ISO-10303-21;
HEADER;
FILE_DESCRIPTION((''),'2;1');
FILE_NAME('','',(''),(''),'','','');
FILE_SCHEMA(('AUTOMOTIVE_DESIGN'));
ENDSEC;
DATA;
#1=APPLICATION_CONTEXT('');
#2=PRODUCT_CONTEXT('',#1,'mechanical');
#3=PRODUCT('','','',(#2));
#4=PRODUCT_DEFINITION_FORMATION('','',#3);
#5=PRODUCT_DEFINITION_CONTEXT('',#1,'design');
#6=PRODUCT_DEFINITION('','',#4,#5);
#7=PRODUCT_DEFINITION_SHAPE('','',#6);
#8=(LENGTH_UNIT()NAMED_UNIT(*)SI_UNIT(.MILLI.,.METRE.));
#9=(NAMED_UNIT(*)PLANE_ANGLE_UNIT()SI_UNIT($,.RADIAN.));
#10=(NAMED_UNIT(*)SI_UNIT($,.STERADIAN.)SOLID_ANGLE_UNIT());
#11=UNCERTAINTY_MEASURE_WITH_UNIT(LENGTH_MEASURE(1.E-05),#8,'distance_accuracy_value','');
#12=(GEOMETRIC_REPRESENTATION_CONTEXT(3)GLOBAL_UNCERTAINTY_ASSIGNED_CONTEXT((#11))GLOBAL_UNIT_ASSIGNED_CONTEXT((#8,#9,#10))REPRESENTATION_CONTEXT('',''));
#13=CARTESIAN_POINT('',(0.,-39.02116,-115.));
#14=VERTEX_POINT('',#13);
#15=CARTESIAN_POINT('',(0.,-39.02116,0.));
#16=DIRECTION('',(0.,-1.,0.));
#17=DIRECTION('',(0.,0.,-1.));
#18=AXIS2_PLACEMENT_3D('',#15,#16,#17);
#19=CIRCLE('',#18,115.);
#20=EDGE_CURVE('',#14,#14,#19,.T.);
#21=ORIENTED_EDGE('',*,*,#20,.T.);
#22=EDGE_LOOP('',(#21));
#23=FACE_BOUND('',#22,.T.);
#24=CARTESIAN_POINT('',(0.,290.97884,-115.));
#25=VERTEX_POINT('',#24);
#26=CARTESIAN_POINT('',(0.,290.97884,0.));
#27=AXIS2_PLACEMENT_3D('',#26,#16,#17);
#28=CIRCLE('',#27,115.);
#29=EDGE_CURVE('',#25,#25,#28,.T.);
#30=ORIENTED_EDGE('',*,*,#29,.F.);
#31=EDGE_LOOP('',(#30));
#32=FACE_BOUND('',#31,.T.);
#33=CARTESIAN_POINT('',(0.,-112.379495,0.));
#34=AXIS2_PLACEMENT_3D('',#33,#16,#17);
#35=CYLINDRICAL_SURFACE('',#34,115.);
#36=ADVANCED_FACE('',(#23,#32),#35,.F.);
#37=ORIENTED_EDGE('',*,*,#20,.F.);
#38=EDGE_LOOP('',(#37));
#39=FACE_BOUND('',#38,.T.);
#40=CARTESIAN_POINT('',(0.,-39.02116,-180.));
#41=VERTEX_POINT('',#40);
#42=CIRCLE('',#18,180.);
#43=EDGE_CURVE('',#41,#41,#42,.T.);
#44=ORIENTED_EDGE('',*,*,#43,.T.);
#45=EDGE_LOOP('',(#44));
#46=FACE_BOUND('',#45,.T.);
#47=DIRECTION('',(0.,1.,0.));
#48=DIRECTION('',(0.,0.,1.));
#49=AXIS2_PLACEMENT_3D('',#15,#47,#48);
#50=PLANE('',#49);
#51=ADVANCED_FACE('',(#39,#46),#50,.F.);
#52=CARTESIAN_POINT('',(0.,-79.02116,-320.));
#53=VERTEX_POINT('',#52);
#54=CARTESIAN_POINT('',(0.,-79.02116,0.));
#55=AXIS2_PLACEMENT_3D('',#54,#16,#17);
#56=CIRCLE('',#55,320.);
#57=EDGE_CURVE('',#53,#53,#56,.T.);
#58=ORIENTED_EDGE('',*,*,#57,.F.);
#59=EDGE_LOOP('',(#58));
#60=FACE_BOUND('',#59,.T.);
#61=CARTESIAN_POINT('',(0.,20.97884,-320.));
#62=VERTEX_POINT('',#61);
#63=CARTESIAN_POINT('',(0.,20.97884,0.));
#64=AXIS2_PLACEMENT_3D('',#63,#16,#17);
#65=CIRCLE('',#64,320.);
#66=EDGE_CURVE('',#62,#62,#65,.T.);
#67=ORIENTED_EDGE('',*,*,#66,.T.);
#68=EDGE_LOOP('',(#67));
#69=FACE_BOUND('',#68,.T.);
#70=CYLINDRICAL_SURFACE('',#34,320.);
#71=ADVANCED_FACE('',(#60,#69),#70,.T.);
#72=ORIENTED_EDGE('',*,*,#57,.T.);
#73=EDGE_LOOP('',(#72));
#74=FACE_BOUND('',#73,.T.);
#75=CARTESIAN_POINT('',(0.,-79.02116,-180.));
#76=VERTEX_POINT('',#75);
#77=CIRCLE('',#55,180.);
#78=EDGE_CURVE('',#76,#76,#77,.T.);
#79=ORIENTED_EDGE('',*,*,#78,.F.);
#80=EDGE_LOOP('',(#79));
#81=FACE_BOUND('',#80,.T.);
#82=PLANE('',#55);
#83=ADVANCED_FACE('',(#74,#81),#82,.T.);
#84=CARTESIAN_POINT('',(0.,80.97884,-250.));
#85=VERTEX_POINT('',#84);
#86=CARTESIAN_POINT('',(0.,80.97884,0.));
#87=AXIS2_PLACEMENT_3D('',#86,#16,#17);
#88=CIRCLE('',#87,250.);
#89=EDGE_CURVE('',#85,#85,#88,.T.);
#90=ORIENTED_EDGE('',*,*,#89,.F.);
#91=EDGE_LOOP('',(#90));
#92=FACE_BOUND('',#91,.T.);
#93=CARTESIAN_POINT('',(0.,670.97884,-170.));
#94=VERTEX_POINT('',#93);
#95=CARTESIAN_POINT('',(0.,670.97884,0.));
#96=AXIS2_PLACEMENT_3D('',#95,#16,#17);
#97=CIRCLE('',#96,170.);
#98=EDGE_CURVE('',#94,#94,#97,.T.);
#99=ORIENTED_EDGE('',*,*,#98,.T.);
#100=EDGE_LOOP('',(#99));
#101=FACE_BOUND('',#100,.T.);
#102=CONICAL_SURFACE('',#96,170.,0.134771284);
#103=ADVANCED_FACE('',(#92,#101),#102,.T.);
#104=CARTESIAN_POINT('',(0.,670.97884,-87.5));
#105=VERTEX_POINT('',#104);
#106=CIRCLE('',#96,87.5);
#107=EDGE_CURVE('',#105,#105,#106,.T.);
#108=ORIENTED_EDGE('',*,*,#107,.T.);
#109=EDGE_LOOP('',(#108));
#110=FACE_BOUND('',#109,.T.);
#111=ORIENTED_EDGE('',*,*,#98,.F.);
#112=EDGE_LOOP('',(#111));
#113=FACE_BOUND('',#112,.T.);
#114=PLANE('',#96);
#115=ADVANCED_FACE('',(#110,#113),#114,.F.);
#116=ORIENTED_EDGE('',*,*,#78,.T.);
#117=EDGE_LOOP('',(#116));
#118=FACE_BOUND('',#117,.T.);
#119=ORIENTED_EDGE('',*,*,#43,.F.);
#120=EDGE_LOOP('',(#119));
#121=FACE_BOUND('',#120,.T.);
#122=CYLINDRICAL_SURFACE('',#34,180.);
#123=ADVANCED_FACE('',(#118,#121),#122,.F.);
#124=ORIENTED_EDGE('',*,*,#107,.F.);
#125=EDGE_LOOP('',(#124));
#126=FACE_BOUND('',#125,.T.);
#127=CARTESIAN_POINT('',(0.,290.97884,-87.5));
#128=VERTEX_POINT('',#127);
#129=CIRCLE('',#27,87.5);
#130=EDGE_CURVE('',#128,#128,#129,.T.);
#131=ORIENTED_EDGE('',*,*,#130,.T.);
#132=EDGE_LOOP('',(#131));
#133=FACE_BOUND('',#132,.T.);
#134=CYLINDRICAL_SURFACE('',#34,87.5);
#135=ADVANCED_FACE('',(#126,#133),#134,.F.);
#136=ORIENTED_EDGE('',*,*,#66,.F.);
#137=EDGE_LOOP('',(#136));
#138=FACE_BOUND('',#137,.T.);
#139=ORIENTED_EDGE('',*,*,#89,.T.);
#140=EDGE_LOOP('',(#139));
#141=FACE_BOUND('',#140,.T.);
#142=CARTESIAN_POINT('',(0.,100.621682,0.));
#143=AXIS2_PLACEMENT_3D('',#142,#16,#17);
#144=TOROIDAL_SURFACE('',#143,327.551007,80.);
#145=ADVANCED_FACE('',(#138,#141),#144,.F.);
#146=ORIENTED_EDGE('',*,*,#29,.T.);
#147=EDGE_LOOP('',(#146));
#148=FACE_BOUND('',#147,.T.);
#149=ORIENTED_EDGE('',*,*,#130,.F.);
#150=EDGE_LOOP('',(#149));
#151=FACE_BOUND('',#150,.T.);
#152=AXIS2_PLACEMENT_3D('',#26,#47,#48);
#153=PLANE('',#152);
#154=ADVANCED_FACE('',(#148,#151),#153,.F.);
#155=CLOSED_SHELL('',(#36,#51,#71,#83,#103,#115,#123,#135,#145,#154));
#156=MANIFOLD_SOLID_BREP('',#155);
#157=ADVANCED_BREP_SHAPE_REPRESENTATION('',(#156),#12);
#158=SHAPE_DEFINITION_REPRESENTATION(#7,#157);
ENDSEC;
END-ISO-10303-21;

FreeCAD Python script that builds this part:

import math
import FreeCAD as App
import Part
import Sketcher

V = App.Vector

doc = App.newDocument("Part")
body = doc.addObject("PartDesign::Body", "Body")

# Sketch on XY plane
sketch1 = body.newObject("Sketcher::SketchObject", "Sketch")
sketch1.AttachmentSupport = (doc.getObject("XY_Plane"), [""])
sketch1.MapMode = "FlatFace"
sketch1.addGeometry([
    Part.LineSegment(V(250, 80.97884, 0), V(170, 670.97884, 0)),  # 0
    Part.LineSegment(V(170, 670.97884, 0), V(87.5, 670.97884, 0)),  # 1
    Part.LineSegment(V(87.5, 670.97884, 0), V(87.5, 290.97884, 0)),  # 2
    Part.LineSegment(V(87.5, 290.97884, 0), V(115, 290.97884, 0)),  # 3
    Part.LineSegment(V(115, 290.97884, 0), V(115, -39.02116, 0)),  # 4
    Part.LineSegment(V(115, -39.02116, 0), V(180, -39.02116, 0)),  # 5
    Part.LineSegment(V(180, -39.02116, 0), V(180, -79.02116, 0)),  # 6
    Part.LineSegment(V(180, -79.02116, 0), V(320, -79.02116, 0)),  # 7
    Part.LineSegment(V(320, -79.02116, 0), V(320, 20.97884, 0)),  # 8
    Part.ArcOfCircle(Part.Circle(V(327.551007, 100.621682, 0), V(0, 0, 1), 80), math.radians(-165.786516), math.radians(-95.416073)),  # 9
], False)
sketch1.addConstraint([
    Sketcher.Constraint("Coincident", 0, 2, 1, 1),
    Sketcher.Constraint("Coincident", 1, 2, 2, 1),
    Sketcher.Constraint("Coincident", 2, 2, 3, 1),
    Sketcher.Constraint("Coincident", 3, 2, 4, 1),
    Sketcher.Constraint("Coincident", 4, 2, 5, 1),
    Sketcher.Constraint("Coincident", 5, 2, 6, 1),
    Sketcher.Constraint("Coincident", 6, 2, 7, 1),
    Sketcher.Constraint("Coincident", 7, 2, 8, 1),
    Sketcher.Constraint("Coincident", 8, 2, 9, 2),
    Sketcher.Constraint("Coincident", 9, 1, 0, 1),
    Sketcher.Constraint("Horizontal", 1),
    Sketcher.Constraint("Vertical", 2),
    Sketcher.Constraint("Horizontal", 3),
    Sketcher.Constraint("Vertical", 4),
    Sketcher.Constraint("Horizontal", 5),
    Sketcher.Constraint("Vertical", 6),
    Sketcher.Constraint("Horizontal", 7),
    Sketcher.Constraint("Vertical", 8),
    Sketcher.Constraint("Radius", 9, 80.0),
    Sketcher.Constraint("DistanceX", 5, 1, 5, 2, 65.0),
    Sketcher.Constraint("DistanceX", 7, 1, 7, 2, 140.0),
    Sketcher.Constraint("DistanceY", 2, 2, 2, 1, 380.0),
    Sketcher.Constraint("DistanceY", 4, 2, 4, 1, 330.0),
    Sketcher.Constraint("DistanceY", 6, 2, 6, 1, 40.0),
    Sketcher.Constraint("DistanceY", 8, 1, 8, 2, 100.0),
    Sketcher.Constraint("DistanceX", 1, 2, 1, 1, 82.5),
    Sketcher.Constraint("DistanceX", 3, 1, 3, 2, 27.5),
    Sketcher.Constraint("DistanceX", -1, 1, 0, 2, 170.0),
    Sketcher.Constraint("DistanceX", -1, 1, 9, 1, 250.0),
    Sketcher.Constraint("DistanceY", 8, 2, 9, 1, 60.0),
    Sketcher.Constraint("DistanceY", -1, 1, 9, 3, 100.621682),
])
revolution = body.newObject("PartDesign::Revolution", "Revolution")
revolution.Profile = sketch1
revolution.ReferenceAxis = (sketch1, ["V_Axis"])
revolution.Angle = 360

doc.recompute()
